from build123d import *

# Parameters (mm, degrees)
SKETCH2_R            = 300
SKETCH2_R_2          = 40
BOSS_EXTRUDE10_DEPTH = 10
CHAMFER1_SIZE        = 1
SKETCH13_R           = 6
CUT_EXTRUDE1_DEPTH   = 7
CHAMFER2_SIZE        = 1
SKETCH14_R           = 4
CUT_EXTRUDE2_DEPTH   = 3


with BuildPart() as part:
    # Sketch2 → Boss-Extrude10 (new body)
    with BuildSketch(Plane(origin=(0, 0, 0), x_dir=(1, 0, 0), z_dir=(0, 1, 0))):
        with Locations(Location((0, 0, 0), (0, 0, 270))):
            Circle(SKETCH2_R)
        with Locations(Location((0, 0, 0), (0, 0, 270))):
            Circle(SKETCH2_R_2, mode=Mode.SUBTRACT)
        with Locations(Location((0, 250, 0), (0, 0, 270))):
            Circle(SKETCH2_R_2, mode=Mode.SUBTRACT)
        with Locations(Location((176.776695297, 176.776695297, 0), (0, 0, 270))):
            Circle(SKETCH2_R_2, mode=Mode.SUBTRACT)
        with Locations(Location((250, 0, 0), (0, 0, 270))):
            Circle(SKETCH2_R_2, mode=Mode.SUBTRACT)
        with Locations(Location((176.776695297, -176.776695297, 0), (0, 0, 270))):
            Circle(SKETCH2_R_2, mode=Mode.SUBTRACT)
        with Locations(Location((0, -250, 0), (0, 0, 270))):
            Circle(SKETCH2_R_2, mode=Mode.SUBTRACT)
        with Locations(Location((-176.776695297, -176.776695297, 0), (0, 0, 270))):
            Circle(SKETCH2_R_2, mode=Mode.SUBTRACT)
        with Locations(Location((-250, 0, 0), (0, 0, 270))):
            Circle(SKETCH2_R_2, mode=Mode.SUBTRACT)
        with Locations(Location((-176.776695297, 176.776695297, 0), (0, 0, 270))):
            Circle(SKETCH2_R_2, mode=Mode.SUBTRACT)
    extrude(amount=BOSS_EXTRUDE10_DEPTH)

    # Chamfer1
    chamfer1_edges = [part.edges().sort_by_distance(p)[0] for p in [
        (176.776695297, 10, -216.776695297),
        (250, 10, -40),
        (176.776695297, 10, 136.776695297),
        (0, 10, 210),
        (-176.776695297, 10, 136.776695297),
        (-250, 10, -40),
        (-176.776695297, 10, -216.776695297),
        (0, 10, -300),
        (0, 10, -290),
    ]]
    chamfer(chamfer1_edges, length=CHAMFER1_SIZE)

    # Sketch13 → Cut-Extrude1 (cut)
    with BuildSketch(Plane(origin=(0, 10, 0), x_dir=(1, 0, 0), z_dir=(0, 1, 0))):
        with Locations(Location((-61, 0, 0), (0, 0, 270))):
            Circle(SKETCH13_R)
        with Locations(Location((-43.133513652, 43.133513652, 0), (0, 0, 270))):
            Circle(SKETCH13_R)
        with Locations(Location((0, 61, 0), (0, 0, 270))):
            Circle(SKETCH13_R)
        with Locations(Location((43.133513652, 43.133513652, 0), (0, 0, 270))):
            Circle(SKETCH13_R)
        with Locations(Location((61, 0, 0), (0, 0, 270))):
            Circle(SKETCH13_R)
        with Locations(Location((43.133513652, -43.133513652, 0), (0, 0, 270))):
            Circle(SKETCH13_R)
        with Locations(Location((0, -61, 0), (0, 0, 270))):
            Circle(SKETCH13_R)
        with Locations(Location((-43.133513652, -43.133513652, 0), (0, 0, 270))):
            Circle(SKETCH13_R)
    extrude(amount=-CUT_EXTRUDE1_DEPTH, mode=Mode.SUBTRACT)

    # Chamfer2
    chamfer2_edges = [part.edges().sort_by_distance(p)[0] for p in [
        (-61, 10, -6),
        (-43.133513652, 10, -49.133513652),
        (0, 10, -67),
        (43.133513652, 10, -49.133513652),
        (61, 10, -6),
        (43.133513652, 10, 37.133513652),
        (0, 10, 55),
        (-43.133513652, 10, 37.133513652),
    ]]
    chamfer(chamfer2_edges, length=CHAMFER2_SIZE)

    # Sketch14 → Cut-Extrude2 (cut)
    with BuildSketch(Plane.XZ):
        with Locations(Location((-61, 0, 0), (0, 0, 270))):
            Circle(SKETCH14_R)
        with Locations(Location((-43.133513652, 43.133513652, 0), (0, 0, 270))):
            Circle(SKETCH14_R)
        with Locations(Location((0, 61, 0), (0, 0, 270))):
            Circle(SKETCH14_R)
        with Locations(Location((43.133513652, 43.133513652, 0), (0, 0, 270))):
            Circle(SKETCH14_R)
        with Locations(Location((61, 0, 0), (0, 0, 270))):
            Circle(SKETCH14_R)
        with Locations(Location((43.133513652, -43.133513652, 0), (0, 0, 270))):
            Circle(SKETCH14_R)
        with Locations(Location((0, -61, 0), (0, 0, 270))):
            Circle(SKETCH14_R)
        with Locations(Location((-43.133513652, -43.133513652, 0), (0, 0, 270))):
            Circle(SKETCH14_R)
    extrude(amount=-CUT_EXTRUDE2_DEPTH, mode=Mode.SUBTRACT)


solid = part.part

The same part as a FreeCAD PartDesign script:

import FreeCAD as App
import Part
import Sketcher


def edges_at(feature, points):
    """Names of the edges that pass closest to the given points."""
    edges = feature.Shape.Edges
    near = lambda p: min(range(len(edges)), key=lambda i: edges[i].distToShape(Part.Vertex(*p))[0])
    return sorted({f"Edge{near(p) + 1}" for p in points})

doc = App.newDocument("Part")
body = doc.addObject("PartDesign::Body", "Body")

# Sketch on XZ plane
sketch1 = doc.addObject("Sketcher::SketchObject", "Sketch")
body.addObject(sketch1)
sketch1.AttachmentSupport = (doc.XZ_Plane, [""])
sketch1.MapMode = "FlatFace"
sketch1.addGeometry([
    Part.Circle(App.Vector(0, 0, 0), App.Vector(0, 0, 1), 300),  # 0
    Part.Circle(App.Vector(-176.776695, -176.776695, 0), App.Vector(0, 0, 1), 40),  # 1
    Part.Circle(App.Vector(0, -250, 0), App.Vector(0, 0, 1), 40),  # 2
    Part.Circle(App.Vector(-250, 0, 0), App.Vector(0, 0, 1), 40),  # 3
    Part.Circle(App.Vector(-176.776695, 176.776695, 0), App.Vector(0, 0, 1), 40),  # 4
    Part.Circle(App.Vector(176.776695, -176.776695, 0), App.Vector(0, 0, 1), 40),  # 5
    Part.Circle(App.Vector(0, 0, 0), App.Vector(0, 0, 1), 40),  # 6
    Part.Circle(App.Vector(0, 250, 0), App.Vector(0, 0, 1), 40),  # 7
    Part.Circle(App.Vector(250, 0, 0), App.Vector(0, 0, 1), 40),  # 8
    Part.Circle(App.Vector(176.776695, 176.776695, 0), App.Vector(0, 0, 1), 40),  # 9
], False)
sketch1.addConstraint([
    Sketcher.Constraint("Coincident", 0, 3, -1, 1),
    Sketcher.Constraint("Coincident", 6, 3, -1, 1),
    Sketcher.Constraint("Equal", 1, 2),
    Sketcher.Constraint("Equal", 2, 3),
    Sketcher.Constraint("Equal", 3, 4),
    Sketcher.Constraint("Equal", 4, 5),
    Sketcher.Constraint("Equal", 5, 6),
    Sketcher.Constraint("Equal", 6, 7),
    Sketcher.Constraint("Equal", 7, 8),
    Sketcher.Constraint("Equal", 8, 9),
    Sketcher.Constraint("Symmetric", 4, 3, 5, 3, -1, 1),
    Sketcher.Constraint("Symmetric", 2, 3, 7, 3, -1, 1),
    Sketcher.Constraint("Symmetric", 3, 3, 8, 3, -1, 1),
    Sketcher.Constraint("Symmetric", 1, 3, 9, 3, -1, 1),
    Sketcher.Constraint("Symmetric", 1, 3, 5, 3, -2),
    Sketcher.Constraint("PointOnObject", 2, 3, -2),
    Sketcher.Constraint("PointOnObject", 3, 3, -1),
    Sketcher.Constraint("Diameter", 0, 600.0),
    Sketcher.Constraint("Diameter", 1, 80.0),
    Sketcher.Constraint("DistanceY", 2, 3, -1, 1, 250.0),
    Sketcher.Constraint("DistanceX", 3, 3, -1, 1, 250.0),
    Sketcher.Constraint("DistanceY", 1, 3, 4, 3, 353.553391),
    Sketcher.Constraint("DistanceX", 1, 3, 5, 3, 353.553391),
])
pad1 = doc.addObject("PartDesign::Pad", "Pad")
body.addObject(pad1)
pad1.Profile = sketch1
pad1.Length = 10
pad1.Reversed = True
doc.recompute()

chamfer = doc.addObject("PartDesign::Chamfer", "Chamfer")
body.addObject(chamfer)
chamfer.Base = (pad1, edges_at(pad1, [
    (176.777, 10, -216.777),
    (250, 10, -40),
    (176.777, 10, 136.777),
    (0, 10, 210),
    (-176.777, 10, 136.777),
    (-250, 10, -40),
    (-176.777, 10, -216.777),
    (0, 10, -300),
    (0, 10, -290),
]))
chamfer.Size = 1

# Sketch on XZ plane
sketch2 = doc.addObject("Sketcher::SketchObject", "Sketch001")
body.addObject(sketch2)
sketch2.AttachmentSupport = (doc.XZ_Plane, [""])
sketch2.MapMode = "FlatFace"
sketch2.AttachmentOffset = App.Placement(App.Vector(0, 0, -10), App.Rotation())
sketch2.addGeometry([
    Part.Circle(App.Vector(-61, 0, 0), App.Vector(0, 0, 1), 6),  # 0
    Part.Circle(App.Vector(-43.133514, -43.133514, 0), App.Vector(0, 0, 1), 6),  # 1
    Part.Circle(App.Vector(0, -61, 0), App.Vector(0, 0, 1), 6),  # 2
    Part.Circle(App.Vector(43.133514, -43.133514, 0), App.Vector(0, 0, 1), 6),  # 3
    Part.Circle(App.Vector(61, 0, 0), App.Vector(0, 0, 1), 6),  # 4
    Part.Circle(App.Vector(43.133514, 43.133514, 0), App.Vector(0, 0, 1), 6),  # 5
    Part.Circle(App.Vector(0, 61, 0), App.Vector(0, 0, 1), 6),  # 6
    Part.Circle(App.Vector(-43.133514, 43.133514, 0), App.Vector(0, 0, 1), 6),  # 7
], False)
sketch2.addConstraint([
    Sketcher.Constraint("Equal", 0, 1),
    Sketcher.Constraint("Equal", 1, 2),
    Sketcher.Constraint("Equal", 2, 3),
    Sketcher.Constraint("Equal", 3, 4),
    Sketcher.Constraint("Equal", 4, 5),
    Sketcher.Constraint("Equal", 5, 6),
    Sketcher.Constraint("Equal", 6, 7),
    Sketcher.Constraint("Symmetric", 0, 3, 4, 3, -1, 1),
    Sketcher.Constraint("Symmetric", 1, 3, 5, 3, -1, 1),
    Sketcher.Constraint("Symmetric", 2, 3, 6, 3, -1, 1),
    Sketcher.Constraint("Symmetric", 3, 3, 7, 3, -1, 1),
    Sketcher.Constraint("Symmetric", 1, 3, 3, 3, -2),
    Sketcher.Constraint("PointOnObject", 0, 3, -1),
    Sketcher.Constraint("PointOnObject", 2, 3, -2),
    Sketcher.Constraint("Diameter", 0, 12.0),
    Sketcher.Constraint("DistanceX", 0, 3, -1, 1, 61.0),
    Sketcher.Constraint("DistanceY", 2, 3, -1, 1, 61.0),
    Sketcher.Constraint("DistanceX", 1, 3, -1, 1, 43.133514),
    Sketcher.Constraint("DistanceY", 1, 3, -1, 1, 43.133514),
])
pocket1 = doc.addObject("PartDesign::Pocket", "Pocket")
body.addObject(pocket1)
pocket1.Profile = sketch2
pocket1.Length = 7
pocket1.Reversed = True
doc.recompute()

chamfer2 = doc.addObject("PartDesign::Chamfer", "Chamfer001")
body.addObject(chamfer2)
chamfer2.Base = (pocket1, edges_at(pocket1, [
    (-61, 10, -6),
    (-43.134, 10, -49.134),
    (0, 10, -67),
    (43.134, 10, -49.134),
    (61, 10, -6),
    (43.134, 10, 37.134),
    (0, 10, 55),
    (-43.134, 10, 37.134),
]))
chamfer2.Size = 1

# Sketch on XZ plane
sketch3 = doc.addObject("Sketcher::SketchObject", "Sketch002")
body.addObject(sketch3)
sketch3.AttachmentSupport = (doc.XZ_Plane, [""])
sketch3.MapMode = "FlatFace"
sketch3.addGeometry([
    Part.Circle(App.Vector(-61, 0, 0), App.Vector(0, 0, 1), 4),  # 0
    Part.Circle(App.Vector(-43.133514, 43.133514, 0), App.Vector(0, 0, 1), 4),  # 1
    Part.Circle(App.Vector(0, 61, 0), App.Vector(0, 0, 1), 4),  # 2
    Part.Circle(App.Vector(43.133514, 43.133514, 0), App.Vector(0, 0, 1), 4),  # 3
    Part.Circle(App.Vector(61, 0, 0), App.Vector(0, 0, 1), 4),  # 4
    Part.Circle(App.Vector(43.133514, -43.133514, 0), App.Vector(0, 0, 1), 4),  # 5
    Part.Circle(App.Vector(0, -61, 0), App.Vector(0, 0, 1), 4),  # 6
    Part.Circle(App.Vector(-43.133514, -43.133514, 0), App.Vector(0, 0, 1), 4),  # 7
], False)
sketch3.addConstraint([
    Sketcher.Constraint("Equal", 0, 1),
    Sketcher.Constraint("Equal", 1, 2),
    Sketcher.Constraint("Equal", 2, 3),
    Sketcher.Constraint("Equal", 3, 4),
    Sketcher.Constraint("Equal", 4, 5),
    Sketcher.Constraint("Equal", 5, 6),
    Sketcher.Constraint("Equal", 6, 7),
    Sketcher.Constraint("Symmetric", 0, 3, 4, 3, -1, 1),
    Sketcher.Constraint("Symmetric", 1, 3, 5, 3, -1, 1),
    Sketcher.Constraint("Symmetric", 2, 3, 6, 3, -1, 1),
    Sketcher.Constraint("Symmetric", 3, 3, 7, 3, -1, 1),
    Sketcher.Constraint("Symmetric", 1, 3, 3, 3, -2),
    Sketcher.Constraint("PointOnObject", 0, 3, -1),
    Sketcher.Constraint("PointOnObject", 2, 3, -2),
    Sketcher.Constraint("Diameter", 0, 8.0),
    Sketcher.Constraint("DistanceX", 0, 3, -1, 1, 61.0),
    Sketcher.Constraint("DistanceY", -1, 1, 2, 3, 61.0),
    Sketcher.Constraint("DistanceX", 1, 3, -1, 1, 43.133514),
    Sketcher.Constraint("DistanceY", -1, 1, 1, 3, 43.133514),
])
pocket2 = doc.addObject("PartDesign::Pocket", "Pocket001")
body.addObject(pocket2)
pocket2.Profile = sketch3
pocket2.Length = 3

doc.recompute()
